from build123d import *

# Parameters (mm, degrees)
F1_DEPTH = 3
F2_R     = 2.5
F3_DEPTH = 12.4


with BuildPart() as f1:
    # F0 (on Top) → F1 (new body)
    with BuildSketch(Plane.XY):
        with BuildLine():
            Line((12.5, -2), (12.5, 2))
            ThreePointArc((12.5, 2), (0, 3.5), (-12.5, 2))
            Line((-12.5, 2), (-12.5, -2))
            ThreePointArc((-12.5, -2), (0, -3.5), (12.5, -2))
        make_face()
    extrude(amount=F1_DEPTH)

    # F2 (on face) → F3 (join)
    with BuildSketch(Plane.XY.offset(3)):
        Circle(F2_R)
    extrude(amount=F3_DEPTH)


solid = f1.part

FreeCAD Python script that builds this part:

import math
import FreeCAD as App
import Part
import Sketcher

V = App.Vector

doc = App.newDocument("Part")
body = doc.addObject("PartDesign::Body", "Body")

# Sketch on XY plane
sketch1 = doc.addObject("Sketcher::SketchObject", "Sketch")
body.addObject(sketch1)
sketch1.AttachmentSupport = (doc.XY_Plane, [""])
sketch1.MapMode = "FlatFace"
sketch1.addGeometry([
    Part.LineSegment(V(12.5, -2, 0), V(12.5, 2, 0)),
    Part.ArcOfCircle(Part.Circle(V(0, -49.333333, 0), V(0, 0, 1), 52.833333), math.radians(76.314453), math.radians(103.685547)),
    Part.LineSegment(V(-12.5, 2, 0), V(-12.5, -2, 0)),
    Part.ArcOfCircle(Part.Circle(V(0, 49.333333, 0), V(0, 0, 1), 52.833333), math.radians(-103.685547), math.radians(-76.314453)),
], False)
sketch1.addConstraint([
    Sketcher.Constraint("Coincident", 0, 2, 1, 1),
    Sketcher.Constraint("Coincident", 1, 2, 2, 1),
    Sketcher.Constraint("Coincident", 2, 2, 3, 1),
    Sketcher.Constraint("Coincident", 3, 2, 0, 1),
    Sketcher.Constraint("Vertical", 0),
    Sketcher.Constraint("Vertical", 2),
    Sketcher.Constraint("Equal", 1, 3),
    Sketcher.Constraint("Symmetric", 1, 3, 3, 3, -1, 1),
    Sketcher.Constraint("Symmetric", 0, 2, 1, 2, -2),
    Sketcher.Constraint("DistanceY", 0, 1, 0, 2, 4.0),
    Sketcher.Constraint("DistanceX", 1, 2, 0, 2, 25.0),
    Sketcher.Constraint("Radius", 1, 52.833333),
])
pad1 = doc.addObject("PartDesign::Pad", "Pad")
body.addObject(pad1)
pad1.Profile = sketch1
pad1.Length = 3

# Sketch on XY plane
sketch2 = doc.addObject("Sketcher::SketchObject", "Sketch001")
body.addObject(sketch2)
sketch2.AttachmentSupport = (doc.XY_Plane, [""])
sketch2.MapMode = "FlatFace"
sketch2.AttachmentOffset = App.Placement(V(0, 0, 3), App.Rotation())
sketch2.addGeometry(Part.Circle(V(0, 0, 0), V(0, 0, 1), 2.5), False)
sketch2.addConstraint([
    Sketcher.Constraint("Coincident", 0, 3, -1, 1),
    Sketcher.Constraint("Diameter", 0, 5.0),
])
pad2 = doc.addObject("PartDesign::Pad", "Pad001")
body.addObject(pad2)
pad2.Profile = sketch2
pad2.Length = 12.4

doc.recompute()
